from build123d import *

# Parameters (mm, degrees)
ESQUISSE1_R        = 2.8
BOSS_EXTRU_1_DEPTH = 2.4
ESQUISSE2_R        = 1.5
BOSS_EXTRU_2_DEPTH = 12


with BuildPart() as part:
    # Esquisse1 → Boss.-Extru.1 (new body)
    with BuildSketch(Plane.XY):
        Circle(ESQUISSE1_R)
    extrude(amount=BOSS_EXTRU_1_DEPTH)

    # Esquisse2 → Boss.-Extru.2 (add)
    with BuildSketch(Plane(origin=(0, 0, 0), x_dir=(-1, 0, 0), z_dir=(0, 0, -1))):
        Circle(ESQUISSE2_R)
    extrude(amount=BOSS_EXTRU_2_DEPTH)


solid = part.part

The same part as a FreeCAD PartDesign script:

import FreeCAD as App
import Part
import Sketcher

doc = App.newDocument("Part")
params = doc.addObject("Spreadsheet::Sheet", "Params")
for row, (alias, value) in enumerate([
    ("sketch1_diameter", "5.6 mm"),
    ("pad1_length", "2.4 mm"),
    ("sketch2_diameter", "3 mm"),
    ("pad2_length", "12 mm"),
], start=1):
    params.set(f"A{row}", alias)
    params.set(f"B{row}", "=" + value)
    params.setAlias(f"B{row}", alias)

body = doc.addObject("PartDesign::Body", "Body")

# Sketch on XY plane
sketch1 = body.newObject("Sketcher::SketchObject", "Sketch")
sketch1.AttachmentSupport = (doc.getObject("XY_Plane"), [""])
sketch1.MapMode = "FlatFace"
sketch1.addGeometry(Part.Circle(App.Vector(0, 0, 0), App.Vector(0, 0, 1), 2.8), False)
sketch1.addConstraint([
    Sketcher.Constraint("Coincident", 0, 3, -1, 1),
    Sketcher.Constraint("Diameter", 0, 5.6),
])
sketch1.setExpression("Constraints[1]", "Params.sketch1_diameter")
pad1 = body.newObject("PartDesign::Pad", "Pad")
pad1.Profile = sketch1
pad1.setExpression("Length", "Params.pad1_length")

# Sketch on XY plane
sketch2 = body.newObject("Sketcher::SketchObject", "Sketch001")
sketch2.AttachmentSupport = (doc.getObject("XY_Plane"), [""])
sketch2.MapMode = "FlatFace"
sketch2.addGeometry(Part.Circle(App.Vector(0, 0, 0), App.Vector(0, 0, 1), 1.5), False)
sketch2.addConstraint([
    Sketcher.Constraint("Coincident", 0, 3, -1, 1),
    Sketcher.Constraint("Diameter", 0, 3.0),
])
sketch2.setExpression("Constraints[1]", "Params.sketch2_diameter")
pad2 = body.newObject("PartDesign::Pad", "Pad001")
pad2.Profile = sketch2
pad2.setExpression("Length", "Params.pad2_length")
pad2.Reversed = True

doc.recompute()
